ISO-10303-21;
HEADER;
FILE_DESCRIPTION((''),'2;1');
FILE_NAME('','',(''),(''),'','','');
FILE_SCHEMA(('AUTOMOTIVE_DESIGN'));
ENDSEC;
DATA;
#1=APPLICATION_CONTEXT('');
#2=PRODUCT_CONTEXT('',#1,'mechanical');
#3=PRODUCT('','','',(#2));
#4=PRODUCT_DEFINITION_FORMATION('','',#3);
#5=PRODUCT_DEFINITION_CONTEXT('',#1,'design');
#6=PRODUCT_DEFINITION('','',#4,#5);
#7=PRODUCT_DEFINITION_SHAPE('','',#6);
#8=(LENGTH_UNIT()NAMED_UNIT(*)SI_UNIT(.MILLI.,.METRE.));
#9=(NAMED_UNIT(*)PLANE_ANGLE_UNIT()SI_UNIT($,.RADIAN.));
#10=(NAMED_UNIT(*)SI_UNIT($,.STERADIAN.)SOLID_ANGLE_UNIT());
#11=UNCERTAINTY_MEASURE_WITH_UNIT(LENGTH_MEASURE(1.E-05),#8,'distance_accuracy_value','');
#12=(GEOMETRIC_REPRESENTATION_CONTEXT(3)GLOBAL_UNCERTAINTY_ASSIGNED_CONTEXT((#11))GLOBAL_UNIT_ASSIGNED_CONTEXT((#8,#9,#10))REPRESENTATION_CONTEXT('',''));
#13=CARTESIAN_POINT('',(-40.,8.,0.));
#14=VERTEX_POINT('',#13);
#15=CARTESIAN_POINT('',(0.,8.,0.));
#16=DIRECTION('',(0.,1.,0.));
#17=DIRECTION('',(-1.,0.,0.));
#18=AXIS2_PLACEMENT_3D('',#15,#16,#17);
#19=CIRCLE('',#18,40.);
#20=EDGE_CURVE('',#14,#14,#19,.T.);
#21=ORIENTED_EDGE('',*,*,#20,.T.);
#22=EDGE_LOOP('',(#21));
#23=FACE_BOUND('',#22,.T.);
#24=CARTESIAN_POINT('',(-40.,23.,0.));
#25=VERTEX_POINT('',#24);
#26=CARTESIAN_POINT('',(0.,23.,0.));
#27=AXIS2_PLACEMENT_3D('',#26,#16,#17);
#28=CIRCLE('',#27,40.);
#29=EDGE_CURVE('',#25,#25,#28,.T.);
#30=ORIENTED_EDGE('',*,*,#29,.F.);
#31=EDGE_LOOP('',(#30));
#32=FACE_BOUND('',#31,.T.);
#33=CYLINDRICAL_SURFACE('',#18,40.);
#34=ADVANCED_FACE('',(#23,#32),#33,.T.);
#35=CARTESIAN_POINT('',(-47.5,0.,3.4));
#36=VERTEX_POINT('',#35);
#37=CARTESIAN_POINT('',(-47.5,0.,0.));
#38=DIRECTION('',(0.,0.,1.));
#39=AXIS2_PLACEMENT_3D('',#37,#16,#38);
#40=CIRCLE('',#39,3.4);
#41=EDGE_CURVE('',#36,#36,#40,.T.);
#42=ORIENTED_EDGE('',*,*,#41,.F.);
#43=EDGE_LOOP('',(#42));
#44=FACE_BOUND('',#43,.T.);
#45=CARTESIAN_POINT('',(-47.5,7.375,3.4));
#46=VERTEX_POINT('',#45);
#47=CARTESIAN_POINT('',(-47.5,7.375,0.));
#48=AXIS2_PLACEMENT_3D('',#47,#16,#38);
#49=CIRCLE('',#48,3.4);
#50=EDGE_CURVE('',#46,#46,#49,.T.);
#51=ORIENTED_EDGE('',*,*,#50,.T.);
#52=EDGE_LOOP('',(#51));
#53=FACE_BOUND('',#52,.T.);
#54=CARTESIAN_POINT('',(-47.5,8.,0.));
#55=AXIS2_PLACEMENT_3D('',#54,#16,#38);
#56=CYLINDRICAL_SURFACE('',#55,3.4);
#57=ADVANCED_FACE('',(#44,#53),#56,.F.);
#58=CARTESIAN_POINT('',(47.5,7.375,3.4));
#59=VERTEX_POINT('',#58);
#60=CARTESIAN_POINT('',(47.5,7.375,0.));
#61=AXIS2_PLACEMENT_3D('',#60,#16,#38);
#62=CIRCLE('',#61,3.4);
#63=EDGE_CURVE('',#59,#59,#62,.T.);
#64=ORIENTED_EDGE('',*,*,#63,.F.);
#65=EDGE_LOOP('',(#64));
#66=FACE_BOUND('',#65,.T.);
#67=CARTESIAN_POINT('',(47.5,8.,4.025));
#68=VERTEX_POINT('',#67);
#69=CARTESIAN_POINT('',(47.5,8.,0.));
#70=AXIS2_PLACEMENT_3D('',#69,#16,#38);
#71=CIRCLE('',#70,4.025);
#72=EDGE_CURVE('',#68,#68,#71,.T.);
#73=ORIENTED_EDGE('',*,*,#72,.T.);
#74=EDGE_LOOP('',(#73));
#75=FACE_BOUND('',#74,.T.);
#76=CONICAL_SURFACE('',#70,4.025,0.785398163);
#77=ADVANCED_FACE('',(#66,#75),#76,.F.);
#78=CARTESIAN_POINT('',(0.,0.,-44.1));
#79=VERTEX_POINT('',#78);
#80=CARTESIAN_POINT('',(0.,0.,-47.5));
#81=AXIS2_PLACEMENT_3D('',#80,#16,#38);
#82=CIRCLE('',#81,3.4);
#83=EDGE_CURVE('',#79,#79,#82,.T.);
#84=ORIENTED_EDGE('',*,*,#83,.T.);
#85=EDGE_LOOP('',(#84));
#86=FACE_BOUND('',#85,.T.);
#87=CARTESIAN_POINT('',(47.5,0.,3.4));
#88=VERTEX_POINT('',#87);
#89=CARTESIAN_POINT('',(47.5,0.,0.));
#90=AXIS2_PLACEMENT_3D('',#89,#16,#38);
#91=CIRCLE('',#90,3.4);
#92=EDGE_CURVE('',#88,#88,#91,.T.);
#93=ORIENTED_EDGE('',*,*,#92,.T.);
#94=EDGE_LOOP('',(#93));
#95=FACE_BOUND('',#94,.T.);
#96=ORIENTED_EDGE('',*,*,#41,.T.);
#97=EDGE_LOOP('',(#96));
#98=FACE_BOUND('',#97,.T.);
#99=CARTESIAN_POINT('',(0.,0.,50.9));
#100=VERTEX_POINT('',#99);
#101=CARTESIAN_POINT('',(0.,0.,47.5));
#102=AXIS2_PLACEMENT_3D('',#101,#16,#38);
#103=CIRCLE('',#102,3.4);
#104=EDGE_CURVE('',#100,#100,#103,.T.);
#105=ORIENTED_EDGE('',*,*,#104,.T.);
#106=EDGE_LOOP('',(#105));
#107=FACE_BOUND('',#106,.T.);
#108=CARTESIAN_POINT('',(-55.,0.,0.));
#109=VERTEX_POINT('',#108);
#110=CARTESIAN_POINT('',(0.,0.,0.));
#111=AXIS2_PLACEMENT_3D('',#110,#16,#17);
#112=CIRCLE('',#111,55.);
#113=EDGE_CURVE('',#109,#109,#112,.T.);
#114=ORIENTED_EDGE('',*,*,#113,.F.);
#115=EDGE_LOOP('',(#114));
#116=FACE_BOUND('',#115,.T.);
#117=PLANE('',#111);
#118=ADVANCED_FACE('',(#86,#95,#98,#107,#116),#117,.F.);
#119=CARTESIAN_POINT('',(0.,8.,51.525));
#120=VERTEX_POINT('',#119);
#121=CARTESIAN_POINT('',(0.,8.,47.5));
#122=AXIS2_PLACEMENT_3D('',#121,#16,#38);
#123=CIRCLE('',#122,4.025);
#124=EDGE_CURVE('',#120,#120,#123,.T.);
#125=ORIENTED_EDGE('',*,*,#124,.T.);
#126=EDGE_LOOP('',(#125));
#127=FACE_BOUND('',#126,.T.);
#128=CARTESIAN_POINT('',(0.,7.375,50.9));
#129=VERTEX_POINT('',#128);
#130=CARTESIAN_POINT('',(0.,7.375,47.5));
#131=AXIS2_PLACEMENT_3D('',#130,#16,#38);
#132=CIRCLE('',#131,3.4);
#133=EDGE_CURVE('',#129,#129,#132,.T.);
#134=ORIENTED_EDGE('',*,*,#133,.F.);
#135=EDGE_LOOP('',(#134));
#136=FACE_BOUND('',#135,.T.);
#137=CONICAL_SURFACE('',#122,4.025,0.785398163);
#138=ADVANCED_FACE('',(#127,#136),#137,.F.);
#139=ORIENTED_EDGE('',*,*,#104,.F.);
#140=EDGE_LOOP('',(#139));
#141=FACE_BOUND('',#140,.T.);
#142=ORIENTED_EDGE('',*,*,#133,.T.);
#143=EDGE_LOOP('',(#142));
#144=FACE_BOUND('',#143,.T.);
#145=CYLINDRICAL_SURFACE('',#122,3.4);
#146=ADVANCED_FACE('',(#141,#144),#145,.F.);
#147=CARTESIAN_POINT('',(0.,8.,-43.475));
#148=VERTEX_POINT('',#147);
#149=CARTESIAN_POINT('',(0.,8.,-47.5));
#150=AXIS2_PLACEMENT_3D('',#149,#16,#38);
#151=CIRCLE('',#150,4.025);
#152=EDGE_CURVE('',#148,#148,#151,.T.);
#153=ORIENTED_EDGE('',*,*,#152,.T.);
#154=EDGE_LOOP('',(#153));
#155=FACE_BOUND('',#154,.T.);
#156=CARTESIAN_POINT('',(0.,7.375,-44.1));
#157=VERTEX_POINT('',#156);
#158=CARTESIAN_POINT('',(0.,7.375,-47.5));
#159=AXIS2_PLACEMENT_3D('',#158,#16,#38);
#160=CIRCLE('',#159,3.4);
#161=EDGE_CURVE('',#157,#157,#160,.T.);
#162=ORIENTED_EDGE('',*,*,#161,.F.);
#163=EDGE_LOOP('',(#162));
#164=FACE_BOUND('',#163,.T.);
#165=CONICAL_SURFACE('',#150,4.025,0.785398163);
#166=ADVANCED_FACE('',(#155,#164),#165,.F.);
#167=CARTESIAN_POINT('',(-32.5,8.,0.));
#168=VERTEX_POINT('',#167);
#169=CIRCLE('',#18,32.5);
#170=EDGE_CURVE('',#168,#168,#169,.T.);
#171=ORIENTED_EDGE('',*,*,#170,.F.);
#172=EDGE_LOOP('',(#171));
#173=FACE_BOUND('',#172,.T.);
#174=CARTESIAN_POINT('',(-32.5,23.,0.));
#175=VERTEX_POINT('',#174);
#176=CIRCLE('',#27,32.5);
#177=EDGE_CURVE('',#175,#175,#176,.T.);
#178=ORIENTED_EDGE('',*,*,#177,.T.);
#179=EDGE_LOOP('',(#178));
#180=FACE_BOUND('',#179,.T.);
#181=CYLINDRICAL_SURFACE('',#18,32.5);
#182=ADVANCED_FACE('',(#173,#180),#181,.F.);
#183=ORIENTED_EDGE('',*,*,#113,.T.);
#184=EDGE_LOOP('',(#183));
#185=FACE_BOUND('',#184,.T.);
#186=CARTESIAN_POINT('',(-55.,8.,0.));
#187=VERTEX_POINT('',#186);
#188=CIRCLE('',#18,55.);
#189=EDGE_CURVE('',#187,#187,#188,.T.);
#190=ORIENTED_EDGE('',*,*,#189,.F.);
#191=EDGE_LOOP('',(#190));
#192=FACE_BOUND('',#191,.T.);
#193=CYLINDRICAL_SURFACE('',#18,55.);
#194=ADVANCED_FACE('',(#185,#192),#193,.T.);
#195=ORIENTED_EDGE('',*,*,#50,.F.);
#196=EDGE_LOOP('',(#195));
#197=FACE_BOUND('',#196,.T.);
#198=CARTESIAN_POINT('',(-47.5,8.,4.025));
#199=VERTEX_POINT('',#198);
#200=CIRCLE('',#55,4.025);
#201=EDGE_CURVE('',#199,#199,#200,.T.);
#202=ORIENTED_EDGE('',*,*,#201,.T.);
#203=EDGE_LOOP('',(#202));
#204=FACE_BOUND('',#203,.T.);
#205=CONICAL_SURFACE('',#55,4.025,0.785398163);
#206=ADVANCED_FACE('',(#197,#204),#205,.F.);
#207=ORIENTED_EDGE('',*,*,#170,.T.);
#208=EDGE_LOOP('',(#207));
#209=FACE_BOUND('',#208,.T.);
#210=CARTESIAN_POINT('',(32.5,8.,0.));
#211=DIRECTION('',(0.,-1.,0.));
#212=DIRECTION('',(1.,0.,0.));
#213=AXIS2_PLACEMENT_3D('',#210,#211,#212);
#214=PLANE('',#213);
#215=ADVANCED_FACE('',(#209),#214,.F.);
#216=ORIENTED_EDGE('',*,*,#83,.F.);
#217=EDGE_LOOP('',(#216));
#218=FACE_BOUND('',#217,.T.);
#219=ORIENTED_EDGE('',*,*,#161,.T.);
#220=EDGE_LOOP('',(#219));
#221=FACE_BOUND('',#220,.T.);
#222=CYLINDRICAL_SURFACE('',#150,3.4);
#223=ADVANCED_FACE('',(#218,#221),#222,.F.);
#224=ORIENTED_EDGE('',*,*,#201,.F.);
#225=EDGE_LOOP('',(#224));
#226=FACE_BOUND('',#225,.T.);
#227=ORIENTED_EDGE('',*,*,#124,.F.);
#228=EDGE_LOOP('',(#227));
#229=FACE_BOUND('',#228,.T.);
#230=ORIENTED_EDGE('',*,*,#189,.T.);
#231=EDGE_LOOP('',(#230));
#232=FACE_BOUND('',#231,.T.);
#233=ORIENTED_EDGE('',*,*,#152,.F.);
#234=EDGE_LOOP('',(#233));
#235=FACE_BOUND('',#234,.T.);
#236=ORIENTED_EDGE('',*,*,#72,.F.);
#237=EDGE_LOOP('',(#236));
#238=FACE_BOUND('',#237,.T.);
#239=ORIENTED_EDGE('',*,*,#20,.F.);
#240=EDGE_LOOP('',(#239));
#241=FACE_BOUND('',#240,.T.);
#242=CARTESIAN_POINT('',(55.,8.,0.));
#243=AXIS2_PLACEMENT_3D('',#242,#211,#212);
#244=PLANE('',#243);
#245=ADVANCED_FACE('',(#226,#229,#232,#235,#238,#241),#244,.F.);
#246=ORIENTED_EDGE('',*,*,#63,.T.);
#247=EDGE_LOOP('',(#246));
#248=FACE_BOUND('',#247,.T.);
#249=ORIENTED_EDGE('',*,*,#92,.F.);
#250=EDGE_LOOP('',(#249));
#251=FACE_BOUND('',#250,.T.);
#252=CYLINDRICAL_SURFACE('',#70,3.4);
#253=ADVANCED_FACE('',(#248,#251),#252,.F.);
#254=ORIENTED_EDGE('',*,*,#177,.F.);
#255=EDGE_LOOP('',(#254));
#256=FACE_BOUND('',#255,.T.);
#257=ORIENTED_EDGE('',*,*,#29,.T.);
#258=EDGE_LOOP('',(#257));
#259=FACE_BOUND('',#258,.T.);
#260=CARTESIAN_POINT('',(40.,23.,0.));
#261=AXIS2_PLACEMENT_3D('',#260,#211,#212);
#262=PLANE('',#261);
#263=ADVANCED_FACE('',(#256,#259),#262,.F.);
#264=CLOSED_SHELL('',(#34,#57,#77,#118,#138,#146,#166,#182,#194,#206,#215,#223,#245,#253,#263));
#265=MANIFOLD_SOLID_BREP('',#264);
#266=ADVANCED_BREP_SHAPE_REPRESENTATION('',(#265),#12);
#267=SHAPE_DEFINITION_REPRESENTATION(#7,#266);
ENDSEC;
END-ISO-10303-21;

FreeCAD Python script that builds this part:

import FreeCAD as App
import Part
import Sketcher

V = App.Vector
Q = App.Units.Quantity

doc = App.newDocument("Part")
body = doc.addObject("PartDesign::Body", "Body")

sketch1 = body.newObject("Sketcher::SketchObject", "Sketch")
sketch1.AttachmentSupport = (doc.getObject("XY_Plane"), [""])
sketch1.MapMode = "FlatFace"
sketch1.addGeometry(Part.LineSegment(V(0, 0, 0), V(55, 0, 0)), False)
sketch1.addGeometry(Part.LineSegment(V(55, 0, 0), V(55, 8, 0)), False)
sketch1.addGeometry(Part.LineSegment(V(55, 8, 0), V(40, 8, 0)), False)
sketch1.addGeometry(Part.LineSegment(V(40, 8, 0), V(40, 23, 0)), False)
sketch1.addGeometry(Part.LineSegment(V(40, 23, 0), V(32, 23, 0)), False)
sketch1.addGeometry(Part.LineSegment(V(32, 23, 0), V(32, 8, 0)), False)
sketch1.addGeometry(Part.LineSegment(V(32, 8, 0), V(0, 8, 0)), False)
sketch1.addGeometry(Part.LineSegment(V(0, 8, 0), V(0, 0, 0)), False)
sketch1.addConstraint(Sketcher.Constraint("Coincident", 0, 2, 1, 1))
sketch1.addConstraint(Sketcher.Constraint("Coincident", 1, 2, 2, 1))
sketch1.addConstraint(Sketcher.Constraint("Coincident", 2, 2, 3, 1))
sketch1.addConstraint(Sketcher.Constraint("Coincident", 3, 2, 4, 1))
sketch1.addConstraint(Sketcher.Constraint("Coincident", 4, 2, 5, 1))
sketch1.addConstraint(Sketcher.Constraint("Coincident", 5, 2, 6, 1))
sketch1.addConstraint(Sketcher.Constraint("Coincident", 6, 2, 7, 1))
sketch1.addConstraint(Sketcher.Constraint("Coincident", 7, 2, 0, 1))
sketch1.addConstraint(Sketcher.Constraint("Horizontal", 0))
sketch1.addConstraint(Sketcher.Constraint("Vertical", 1))
sketch1.addConstraint(Sketcher.Constraint("Horizontal", 2))
sketch1.addConstraint(Sketcher.Constraint("Vertical", 3))
sketch1.addConstraint(Sketcher.Constraint("Horizontal", 4))
sketch1.addConstraint(Sketcher.Constraint("Vertical", 5))
sketch1.addConstraint(Sketcher.Constraint("Horizontal", 6))
sketch1.addConstraint(Sketcher.Constraint("Vertical", 7))
sketch1.addConstraint(Sketcher.Constraint("Coincident", 7, 2, -1, 1))
sketch1.addConstraint(Sketcher.Constraint("Horizontal", 2, 2, 5, 2))
sketch1.addConstraint(Sketcher.Constraint("Equal", 2, 3))
sketch1.addConstraint(Sketcher.Constraint("DistanceX", 0, 1, 0, 2, Q("55 mm")))
sketch1.addConstraint(Sketcher.Constraint("DistanceX", 2, 2, 2, 1, Q("15 mm")))
sketch1.addConstraint(Sketcher.Constraint("DistanceY", 1, 1, 1, 2, Q("8 mm")))
sketch1.addConstraint(Sketcher.Constraint("DistanceX", 4, 2, 4, 1, Q("7.5 mm")))
revolution = body.newObject("PartDesign::Revolution", "Revolution")
revolution.Profile = sketch1
revolution.ReferenceAxis = (sketch1, ["V_Axis"])
revolution.Angle = 360

sketch2 = body.newObject("Sketcher::SketchObject", "Sketch001")
sketch2.AttachmentSupport = (doc.getObject("XZ_Plane"), [""])
sketch2.MapMode = "FlatFace"
sketch2.AttachmentOffset = App.Placement(V(0, 0, -8), App.Rotation())
sketch2.addGeometry(Part.Circle(V(-47.5, 0, 0), V(0, 0, 1), 3.4), False)
sketch2.addGeometry(Part.Circle(V(47.5, 0, 0), V(0, 0, 1), 3.4), False)
sketch2.addGeometry(Part.Circle(V(0, 47.5, 0), V(0, 0, 1), 3.4), False)
sketch2.addGeometry(Part.Circle(V(0, -47.5, 0), V(0, 0, 1), 3.4), False)
sketch2.addConstraint(Sketcher.Constraint("Equal", 0, 1))
sketch2.addConstraint(Sketcher.Constraint("Equal", 1, 2))
sketch2.addConstraint(Sketcher.Constraint("Equal", 2, 3))
sketch2.addConstraint(Sketcher.Constraint("Symmetric", 0, 3, 1, 3, -1, 1))
sketch2.addConstraint(Sketcher.Constraint("Symmetric", 2, 3, 3, 3, -1, 1))
sketch2.addConstraint(Sketcher.Constraint("PointOnObject", 0, 3, -1))
sketch2.addConstraint(Sketcher.Constraint("PointOnObject", 2, 3, -2))
sketch2.addConstraint(Sketcher.Constraint("Diameter", 0, Q("6.8 mm")))
sketch2.addConstraint(Sketcher.Constraint("DistanceX", 0, 3, 1, 3, Q("95 mm")))
sketch2.addConstraint(Sketcher.Constraint("DistanceY", 3, 3, 2, 3, Q("95 mm")))
doc.recompute()
hole = body.newObject("PartDesign::Hole", "Hole")
hole.Profile = sketch2
hole.ThreadType = "None"
hole.Diameter = 6.8
hole.DepthType = "ThroughAll"
hole.HoleCutType = "Countersink"
hole.HoleCutDiameter = 8.05
hole.HoleCutCountersinkAngle = 90
hole.Reversed = True

doc.recompute()
